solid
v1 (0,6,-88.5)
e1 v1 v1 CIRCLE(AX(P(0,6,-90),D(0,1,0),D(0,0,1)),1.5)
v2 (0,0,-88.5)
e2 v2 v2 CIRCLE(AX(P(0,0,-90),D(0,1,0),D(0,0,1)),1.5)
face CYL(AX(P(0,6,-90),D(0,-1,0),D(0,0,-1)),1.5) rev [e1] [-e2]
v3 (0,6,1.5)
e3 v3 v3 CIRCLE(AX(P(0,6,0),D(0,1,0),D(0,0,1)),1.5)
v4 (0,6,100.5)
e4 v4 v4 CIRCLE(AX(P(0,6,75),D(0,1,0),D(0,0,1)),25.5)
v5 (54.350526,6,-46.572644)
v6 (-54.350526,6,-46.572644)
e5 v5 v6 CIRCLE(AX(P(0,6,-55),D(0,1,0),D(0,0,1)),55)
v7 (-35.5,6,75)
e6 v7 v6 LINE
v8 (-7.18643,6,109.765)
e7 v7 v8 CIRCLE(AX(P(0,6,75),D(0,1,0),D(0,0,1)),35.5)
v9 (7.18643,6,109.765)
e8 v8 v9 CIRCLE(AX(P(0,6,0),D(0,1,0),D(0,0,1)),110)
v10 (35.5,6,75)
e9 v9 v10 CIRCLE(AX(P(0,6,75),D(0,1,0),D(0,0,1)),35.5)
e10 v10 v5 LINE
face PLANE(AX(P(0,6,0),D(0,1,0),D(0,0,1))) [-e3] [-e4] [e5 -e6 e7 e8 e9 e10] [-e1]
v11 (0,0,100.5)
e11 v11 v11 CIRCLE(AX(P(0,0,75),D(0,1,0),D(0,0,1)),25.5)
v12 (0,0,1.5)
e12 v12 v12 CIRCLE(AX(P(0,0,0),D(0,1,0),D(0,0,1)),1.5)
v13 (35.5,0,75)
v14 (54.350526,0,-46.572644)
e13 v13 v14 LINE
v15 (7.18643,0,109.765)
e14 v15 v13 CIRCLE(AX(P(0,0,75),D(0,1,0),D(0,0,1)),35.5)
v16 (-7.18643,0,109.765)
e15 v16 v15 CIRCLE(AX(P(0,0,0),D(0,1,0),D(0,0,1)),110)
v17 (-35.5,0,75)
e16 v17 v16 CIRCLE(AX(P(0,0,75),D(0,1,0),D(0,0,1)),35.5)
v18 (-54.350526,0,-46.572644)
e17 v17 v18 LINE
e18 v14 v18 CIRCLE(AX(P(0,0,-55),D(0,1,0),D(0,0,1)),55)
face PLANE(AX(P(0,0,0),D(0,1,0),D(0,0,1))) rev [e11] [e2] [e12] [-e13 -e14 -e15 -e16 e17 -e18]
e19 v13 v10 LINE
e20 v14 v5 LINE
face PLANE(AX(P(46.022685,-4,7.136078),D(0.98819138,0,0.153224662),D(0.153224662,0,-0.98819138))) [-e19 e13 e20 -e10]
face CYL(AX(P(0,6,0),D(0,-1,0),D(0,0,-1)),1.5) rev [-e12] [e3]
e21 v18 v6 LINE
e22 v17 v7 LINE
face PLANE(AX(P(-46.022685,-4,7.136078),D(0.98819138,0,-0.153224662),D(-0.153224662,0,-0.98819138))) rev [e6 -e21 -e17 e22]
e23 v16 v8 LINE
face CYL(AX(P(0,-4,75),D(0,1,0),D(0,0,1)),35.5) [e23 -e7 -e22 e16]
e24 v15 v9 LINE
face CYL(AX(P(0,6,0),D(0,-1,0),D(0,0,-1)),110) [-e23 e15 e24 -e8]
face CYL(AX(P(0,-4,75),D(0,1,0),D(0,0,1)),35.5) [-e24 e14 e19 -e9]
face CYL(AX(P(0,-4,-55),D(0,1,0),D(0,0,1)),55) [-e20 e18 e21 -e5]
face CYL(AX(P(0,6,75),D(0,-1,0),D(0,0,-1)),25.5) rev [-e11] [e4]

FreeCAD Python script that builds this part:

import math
import FreeCAD as App
import Part
import Sketcher
Q = App.Units.Quantity

doc = App.newDocument("Part")
params = doc.addObject("Spreadsheet::Sheet", "Params")
for row, (alias, value) in enumerate([
    ("sketch1_diameter", "3 mm"),
    ("sketch1_diameter2", "51 mm"),
    ("sketch1_radius", "110 mm"),
    ("pad1_length", "6 mm"),
    ("sketch2_radius", "110 mm"),
    ("sketch2_radius2", "55 mm"),
    ("sketch2_radius3", "35.5 mm"),
    ("pocket1_length", "10 mm"),
], start=1):
    params.set(f"A{row}", alias)
    params.set(f"B{row}", "=" + value)
    params.setAlias(f"B{row}", alias)

body = doc.addObject("PartDesign::Body", "Body")

sketch1 = body.newObject("Sketcher::SketchObject", "Sketch")
sketch1.AttachmentSupport = (doc.getObject("XZ_Plane"), [""])
sketch1.MapMode = "FlatFace"
sketch1.addGeometry(Part.ArcOfCircle(Part.Circle(App.Vector(0, 0, 0), App.Vector(0, 0, 1), 110), math.radians(-55), math.radians(0)), False)
sketch1.addGeometry(Part.ArcOfCircle(Part.Circle(App.Vector(0, 0, 0), App.Vector(0, 0, 1), 110), math.radians(-125), math.radians(-55)), False)
sketch1.addGeometry(Part.ArcOfCircle(Part.Circle(App.Vector(0, 0, 0), App.Vector(0, 0, 1), 110), math.radians(137), math.radians(235)), False)
sketch1.addGeometry(Part.ArcOfCircle(Part.Circle(App.Vector(0, 0, 0), App.Vector(0, 0, 1), 110), math.radians(43), math.radians(137)), False)
sketch1.addGeometry(Part.ArcOfCircle(Part.Circle(App.Vector(0, 0, 0), App.Vector(0, 0, 1), 110), math.radians(0), math.radians(43)), False)
sketch1.addGeometry(Part.Circle(App.Vector(0, -90, 0), App.Vector(0, 0, 1), 1.5), False)
sketch1.addGeometry(Part.Circle(App.Vector(0, 75, 0), App.Vector(0, 0, 1), 25.5), False)
sketch1.addGeometry(Part.Circle(App.Vector(0, 0, 0), App.Vector(0, 0, 1), 1.5), False)
sketch1.addConstraint(Sketcher.Constraint("Tangent", 0, 1, 1, 2))
sketch1.addConstraint(Sketcher.Constraint("Tangent", 1, 1, 2, 2))
sketch1.addConstraint(Sketcher.Constraint("Tangent", 2, 1, 3, 2))
sketch1.addConstraint(Sketcher.Constraint("Tangent", 3, 1, 4, 2))
sketch1.addConstraint(Sketcher.Constraint("Tangent", 4, 1, 0, 2))
sketch1.addConstraint(Sketcher.Constraint("Coincident", 0, 3, -1, 1))
sketch1.addConstraint(Sketcher.Constraint("Coincident", 2, 3, -1, 1))
sketch1.addConstraint(Sketcher.Constraint("Coincident", 7, 3, -1, 1))
sketch1.addConstraint(Sketcher.Constraint("Equal", 5, 7))
sketch1.addConstraint(Sketcher.Constraint("PointOnObject", 5, 3, -2))
sketch1.addConstraint(Sketcher.Constraint("PointOnObject", 6, 3, -2))
sketch1.addConstraint(Sketcher.Constraint("PointOnObject", 4, 1, -1))
sketch1.addConstraint(Sketcher.Constraint("Horizontal", 5, 3, 0, 1))
sketch1.addConstraint(Sketcher.Constraint("Horizontal", 0, 1, 1, 1))
sketch1.addConstraint(Sketcher.Constraint("Horizontal", 6, 3, 2, 1))
sketch1.addConstraint(Sketcher.Constraint("Horizontal", 2, 1, 3, 1))
sketch1.addConstraint(Sketcher.Constraint("Diameter", 5, Q("3 mm")))
sketch1.addConstraint(Sketcher.Constraint("Diameter", 6, Q("51 mm")))
sketch1.addConstraint(Sketcher.Constraint("Radius", 0, Q("110 mm")))
sketch1.addConstraint(Sketcher.Constraint("DistanceY", 5, 3, -1, 1, Q("90 mm")))
sketch1.addConstraint(Sketcher.Constraint("DistanceY", -1, 1, 6, 3, Q("75 mm")))
sketch1.setExpression("Constraints[16]", "Params.sketch1_diameter")
sketch1.setExpression("Constraints[17]", "Params.sketch1_diameter2")
sketch1.setExpression("Constraints[18]", "Params.sketch1_radius")
pad1 = body.newObject("PartDesign::Pad", "Pad")
pad1.Profile = sketch1
pad1.setExpression("Length", "Params.pad1_length")
pad1.Reversed = True

sketch2 = body.newObject("Sketcher::SketchObject", "Sketch001")
sketch2.AttachmentSupport = (doc.getObject("XZ_Plane"), [""])
sketch2.MapMode = "FlatFace"
sketch2.AttachmentOffset = App.Placement(App.Vector(0, 0, 4), App.Rotation())
sketch2.addGeometry(Part.LineSegment(App.Vector(54, -47, 0), App.Vector(36, 75, 0)), False)
sketch2.addGeometry(Part.ArcOfCircle(Part.Circle(App.Vector(0, 75, 0), App.Vector(0, 0, 1), 36), math.radians(0), math.radians(78)), False)
sketch2.addGeometry(Part.ArcOfCircle(Part.Circle(App.Vector(0, 0, 0), App.Vector(0, 0, 1), 110), math.radians(-90), math.radians(86)), False)
sketch2.addGeometry(Part.ArcOfCircle(Part.Circle(App.Vector(0, -55, 0), App.Vector(0, 0, 1), 55), math.radians(-90), math.radians(0)), False)
sketch2.addGeometry(Part.ArcOfCircle(Part.Circle(App.Vector(0, -55, 0), App.Vector(0, 0, 1), 55), math.radians(0), math.radians(8.81)), False)
sketch2.addGeometry(Part.ArcOfCircle(Part.Circle(App.Vector(0, 75, 0), App.Vector(0, 0, 1), 36), math.radians(102), math.radians(180)), False)
sketch2.addGeometry(Part.LineSegment(App.Vector(-36, 75, 0), App.Vector(-54, -47, 0)), False)
sketch2.addGeometry(Part.ArcOfCircle(Part.Circle(App.Vector(0, -55, 0), App.Vector(0, 0, 1), 55), math.radians(171), math.radians(270)), False)
sketch2.addGeometry(Part.ArcOfCircle(Part.Circle(App.Vector(0, 0, 0), App.Vector(0, 0, 1), 110), math.radians(94), math.radians(270)), False)
sketch2.addConstraint(Sketcher.Constraint("Coincident", 0, 2, 1, 1))
sketch2.addConstraint(Sketcher.Constraint("Coincident", 1, 2, 2, 2))
sketch2.addConstraint(Sketcher.Constraint("Tangent", 2, 1, 3, 1))
sketch2.addConstraint(Sketcher.Constraint("Tangent", 3, 2, 4, 1))
sketch2.addConstraint(Sketcher.Constraint("Tangent", 4, 2, 0, 1))
sketch2.addConstraint(Sketcher.Constraint("Coincident", 5, 2, 6, 1))
sketch2.addConstraint(Sketcher.Constraint("Tangent", 6, 2, 7, 1))
sketch2.addConstraint(Sketcher.Constraint("Tangent", 7, 2, 8, 2))
sketch2.addConstraint(Sketcher.Constraint("Coincident", 8, 1, 5, 1))
sketch2.addConstraint(Sketcher.Constraint("Coincident", 2, 3, -1, 1))
sketch2.addConstraint(Sketcher.Constraint("Coincident", 8, 3, -1, 1))
sketch2.addConstraint(Sketcher.Constraint("Coincident", 5, 3, 1, 3))
sketch2.addConstraint(Sketcher.Constraint("Coincident", 7, 3, 3, 3))
sketch2.addConstraint(Sketcher.Constraint("Equal", 3, 4))
sketch2.addConstraint(Sketcher.Constraint("Equal", 1, 5))
sketch2.addConstraint(Sketcher.Constraint("Equal", 4, 7))
sketch2.addConstraint(Sketcher.Constraint("Symmetric", 0, 2, 5, 2, -2))
sketch2.addConstraint(Sketcher.Constraint("PointOnObject", 3, 3, -2))
sketch2.addConstraint(Sketcher.Constraint("Horizontal", 5, 3, 0, 2))
sketch2.addConstraint(Sketcher.Constraint("Horizontal", 7, 3, 3, 2))
sketch2.addConstraint(Sketcher.Constraint("Radius", 2, Q("110 mm")))
sketch2.addConstraint(Sketcher.Constraint("Radius", 3, Q("55 mm")))
sketch2.addConstraint(Sketcher.Constraint("Radius", 1, Q("35.5 mm")))
sketch2.addConstraint(Sketcher.Constraint("DistanceY", -1, 1, 1, 3, Q("75 mm")))
sketch2.setExpression("Constraints[20]", "Params.sketch2_radius")
sketch2.setExpression("Constraints[21]", "Params.sketch2_radius2")
sketch2.setExpression("Constraints[22]", "Params.sketch2_radius3")
pocket1 = body.newObject("PartDesign::Pocket", "Pocket")
pocket1.Profile = sketch2
pocket1.setExpression("Length", "Params.pocket1_length")

doc.recompute()
